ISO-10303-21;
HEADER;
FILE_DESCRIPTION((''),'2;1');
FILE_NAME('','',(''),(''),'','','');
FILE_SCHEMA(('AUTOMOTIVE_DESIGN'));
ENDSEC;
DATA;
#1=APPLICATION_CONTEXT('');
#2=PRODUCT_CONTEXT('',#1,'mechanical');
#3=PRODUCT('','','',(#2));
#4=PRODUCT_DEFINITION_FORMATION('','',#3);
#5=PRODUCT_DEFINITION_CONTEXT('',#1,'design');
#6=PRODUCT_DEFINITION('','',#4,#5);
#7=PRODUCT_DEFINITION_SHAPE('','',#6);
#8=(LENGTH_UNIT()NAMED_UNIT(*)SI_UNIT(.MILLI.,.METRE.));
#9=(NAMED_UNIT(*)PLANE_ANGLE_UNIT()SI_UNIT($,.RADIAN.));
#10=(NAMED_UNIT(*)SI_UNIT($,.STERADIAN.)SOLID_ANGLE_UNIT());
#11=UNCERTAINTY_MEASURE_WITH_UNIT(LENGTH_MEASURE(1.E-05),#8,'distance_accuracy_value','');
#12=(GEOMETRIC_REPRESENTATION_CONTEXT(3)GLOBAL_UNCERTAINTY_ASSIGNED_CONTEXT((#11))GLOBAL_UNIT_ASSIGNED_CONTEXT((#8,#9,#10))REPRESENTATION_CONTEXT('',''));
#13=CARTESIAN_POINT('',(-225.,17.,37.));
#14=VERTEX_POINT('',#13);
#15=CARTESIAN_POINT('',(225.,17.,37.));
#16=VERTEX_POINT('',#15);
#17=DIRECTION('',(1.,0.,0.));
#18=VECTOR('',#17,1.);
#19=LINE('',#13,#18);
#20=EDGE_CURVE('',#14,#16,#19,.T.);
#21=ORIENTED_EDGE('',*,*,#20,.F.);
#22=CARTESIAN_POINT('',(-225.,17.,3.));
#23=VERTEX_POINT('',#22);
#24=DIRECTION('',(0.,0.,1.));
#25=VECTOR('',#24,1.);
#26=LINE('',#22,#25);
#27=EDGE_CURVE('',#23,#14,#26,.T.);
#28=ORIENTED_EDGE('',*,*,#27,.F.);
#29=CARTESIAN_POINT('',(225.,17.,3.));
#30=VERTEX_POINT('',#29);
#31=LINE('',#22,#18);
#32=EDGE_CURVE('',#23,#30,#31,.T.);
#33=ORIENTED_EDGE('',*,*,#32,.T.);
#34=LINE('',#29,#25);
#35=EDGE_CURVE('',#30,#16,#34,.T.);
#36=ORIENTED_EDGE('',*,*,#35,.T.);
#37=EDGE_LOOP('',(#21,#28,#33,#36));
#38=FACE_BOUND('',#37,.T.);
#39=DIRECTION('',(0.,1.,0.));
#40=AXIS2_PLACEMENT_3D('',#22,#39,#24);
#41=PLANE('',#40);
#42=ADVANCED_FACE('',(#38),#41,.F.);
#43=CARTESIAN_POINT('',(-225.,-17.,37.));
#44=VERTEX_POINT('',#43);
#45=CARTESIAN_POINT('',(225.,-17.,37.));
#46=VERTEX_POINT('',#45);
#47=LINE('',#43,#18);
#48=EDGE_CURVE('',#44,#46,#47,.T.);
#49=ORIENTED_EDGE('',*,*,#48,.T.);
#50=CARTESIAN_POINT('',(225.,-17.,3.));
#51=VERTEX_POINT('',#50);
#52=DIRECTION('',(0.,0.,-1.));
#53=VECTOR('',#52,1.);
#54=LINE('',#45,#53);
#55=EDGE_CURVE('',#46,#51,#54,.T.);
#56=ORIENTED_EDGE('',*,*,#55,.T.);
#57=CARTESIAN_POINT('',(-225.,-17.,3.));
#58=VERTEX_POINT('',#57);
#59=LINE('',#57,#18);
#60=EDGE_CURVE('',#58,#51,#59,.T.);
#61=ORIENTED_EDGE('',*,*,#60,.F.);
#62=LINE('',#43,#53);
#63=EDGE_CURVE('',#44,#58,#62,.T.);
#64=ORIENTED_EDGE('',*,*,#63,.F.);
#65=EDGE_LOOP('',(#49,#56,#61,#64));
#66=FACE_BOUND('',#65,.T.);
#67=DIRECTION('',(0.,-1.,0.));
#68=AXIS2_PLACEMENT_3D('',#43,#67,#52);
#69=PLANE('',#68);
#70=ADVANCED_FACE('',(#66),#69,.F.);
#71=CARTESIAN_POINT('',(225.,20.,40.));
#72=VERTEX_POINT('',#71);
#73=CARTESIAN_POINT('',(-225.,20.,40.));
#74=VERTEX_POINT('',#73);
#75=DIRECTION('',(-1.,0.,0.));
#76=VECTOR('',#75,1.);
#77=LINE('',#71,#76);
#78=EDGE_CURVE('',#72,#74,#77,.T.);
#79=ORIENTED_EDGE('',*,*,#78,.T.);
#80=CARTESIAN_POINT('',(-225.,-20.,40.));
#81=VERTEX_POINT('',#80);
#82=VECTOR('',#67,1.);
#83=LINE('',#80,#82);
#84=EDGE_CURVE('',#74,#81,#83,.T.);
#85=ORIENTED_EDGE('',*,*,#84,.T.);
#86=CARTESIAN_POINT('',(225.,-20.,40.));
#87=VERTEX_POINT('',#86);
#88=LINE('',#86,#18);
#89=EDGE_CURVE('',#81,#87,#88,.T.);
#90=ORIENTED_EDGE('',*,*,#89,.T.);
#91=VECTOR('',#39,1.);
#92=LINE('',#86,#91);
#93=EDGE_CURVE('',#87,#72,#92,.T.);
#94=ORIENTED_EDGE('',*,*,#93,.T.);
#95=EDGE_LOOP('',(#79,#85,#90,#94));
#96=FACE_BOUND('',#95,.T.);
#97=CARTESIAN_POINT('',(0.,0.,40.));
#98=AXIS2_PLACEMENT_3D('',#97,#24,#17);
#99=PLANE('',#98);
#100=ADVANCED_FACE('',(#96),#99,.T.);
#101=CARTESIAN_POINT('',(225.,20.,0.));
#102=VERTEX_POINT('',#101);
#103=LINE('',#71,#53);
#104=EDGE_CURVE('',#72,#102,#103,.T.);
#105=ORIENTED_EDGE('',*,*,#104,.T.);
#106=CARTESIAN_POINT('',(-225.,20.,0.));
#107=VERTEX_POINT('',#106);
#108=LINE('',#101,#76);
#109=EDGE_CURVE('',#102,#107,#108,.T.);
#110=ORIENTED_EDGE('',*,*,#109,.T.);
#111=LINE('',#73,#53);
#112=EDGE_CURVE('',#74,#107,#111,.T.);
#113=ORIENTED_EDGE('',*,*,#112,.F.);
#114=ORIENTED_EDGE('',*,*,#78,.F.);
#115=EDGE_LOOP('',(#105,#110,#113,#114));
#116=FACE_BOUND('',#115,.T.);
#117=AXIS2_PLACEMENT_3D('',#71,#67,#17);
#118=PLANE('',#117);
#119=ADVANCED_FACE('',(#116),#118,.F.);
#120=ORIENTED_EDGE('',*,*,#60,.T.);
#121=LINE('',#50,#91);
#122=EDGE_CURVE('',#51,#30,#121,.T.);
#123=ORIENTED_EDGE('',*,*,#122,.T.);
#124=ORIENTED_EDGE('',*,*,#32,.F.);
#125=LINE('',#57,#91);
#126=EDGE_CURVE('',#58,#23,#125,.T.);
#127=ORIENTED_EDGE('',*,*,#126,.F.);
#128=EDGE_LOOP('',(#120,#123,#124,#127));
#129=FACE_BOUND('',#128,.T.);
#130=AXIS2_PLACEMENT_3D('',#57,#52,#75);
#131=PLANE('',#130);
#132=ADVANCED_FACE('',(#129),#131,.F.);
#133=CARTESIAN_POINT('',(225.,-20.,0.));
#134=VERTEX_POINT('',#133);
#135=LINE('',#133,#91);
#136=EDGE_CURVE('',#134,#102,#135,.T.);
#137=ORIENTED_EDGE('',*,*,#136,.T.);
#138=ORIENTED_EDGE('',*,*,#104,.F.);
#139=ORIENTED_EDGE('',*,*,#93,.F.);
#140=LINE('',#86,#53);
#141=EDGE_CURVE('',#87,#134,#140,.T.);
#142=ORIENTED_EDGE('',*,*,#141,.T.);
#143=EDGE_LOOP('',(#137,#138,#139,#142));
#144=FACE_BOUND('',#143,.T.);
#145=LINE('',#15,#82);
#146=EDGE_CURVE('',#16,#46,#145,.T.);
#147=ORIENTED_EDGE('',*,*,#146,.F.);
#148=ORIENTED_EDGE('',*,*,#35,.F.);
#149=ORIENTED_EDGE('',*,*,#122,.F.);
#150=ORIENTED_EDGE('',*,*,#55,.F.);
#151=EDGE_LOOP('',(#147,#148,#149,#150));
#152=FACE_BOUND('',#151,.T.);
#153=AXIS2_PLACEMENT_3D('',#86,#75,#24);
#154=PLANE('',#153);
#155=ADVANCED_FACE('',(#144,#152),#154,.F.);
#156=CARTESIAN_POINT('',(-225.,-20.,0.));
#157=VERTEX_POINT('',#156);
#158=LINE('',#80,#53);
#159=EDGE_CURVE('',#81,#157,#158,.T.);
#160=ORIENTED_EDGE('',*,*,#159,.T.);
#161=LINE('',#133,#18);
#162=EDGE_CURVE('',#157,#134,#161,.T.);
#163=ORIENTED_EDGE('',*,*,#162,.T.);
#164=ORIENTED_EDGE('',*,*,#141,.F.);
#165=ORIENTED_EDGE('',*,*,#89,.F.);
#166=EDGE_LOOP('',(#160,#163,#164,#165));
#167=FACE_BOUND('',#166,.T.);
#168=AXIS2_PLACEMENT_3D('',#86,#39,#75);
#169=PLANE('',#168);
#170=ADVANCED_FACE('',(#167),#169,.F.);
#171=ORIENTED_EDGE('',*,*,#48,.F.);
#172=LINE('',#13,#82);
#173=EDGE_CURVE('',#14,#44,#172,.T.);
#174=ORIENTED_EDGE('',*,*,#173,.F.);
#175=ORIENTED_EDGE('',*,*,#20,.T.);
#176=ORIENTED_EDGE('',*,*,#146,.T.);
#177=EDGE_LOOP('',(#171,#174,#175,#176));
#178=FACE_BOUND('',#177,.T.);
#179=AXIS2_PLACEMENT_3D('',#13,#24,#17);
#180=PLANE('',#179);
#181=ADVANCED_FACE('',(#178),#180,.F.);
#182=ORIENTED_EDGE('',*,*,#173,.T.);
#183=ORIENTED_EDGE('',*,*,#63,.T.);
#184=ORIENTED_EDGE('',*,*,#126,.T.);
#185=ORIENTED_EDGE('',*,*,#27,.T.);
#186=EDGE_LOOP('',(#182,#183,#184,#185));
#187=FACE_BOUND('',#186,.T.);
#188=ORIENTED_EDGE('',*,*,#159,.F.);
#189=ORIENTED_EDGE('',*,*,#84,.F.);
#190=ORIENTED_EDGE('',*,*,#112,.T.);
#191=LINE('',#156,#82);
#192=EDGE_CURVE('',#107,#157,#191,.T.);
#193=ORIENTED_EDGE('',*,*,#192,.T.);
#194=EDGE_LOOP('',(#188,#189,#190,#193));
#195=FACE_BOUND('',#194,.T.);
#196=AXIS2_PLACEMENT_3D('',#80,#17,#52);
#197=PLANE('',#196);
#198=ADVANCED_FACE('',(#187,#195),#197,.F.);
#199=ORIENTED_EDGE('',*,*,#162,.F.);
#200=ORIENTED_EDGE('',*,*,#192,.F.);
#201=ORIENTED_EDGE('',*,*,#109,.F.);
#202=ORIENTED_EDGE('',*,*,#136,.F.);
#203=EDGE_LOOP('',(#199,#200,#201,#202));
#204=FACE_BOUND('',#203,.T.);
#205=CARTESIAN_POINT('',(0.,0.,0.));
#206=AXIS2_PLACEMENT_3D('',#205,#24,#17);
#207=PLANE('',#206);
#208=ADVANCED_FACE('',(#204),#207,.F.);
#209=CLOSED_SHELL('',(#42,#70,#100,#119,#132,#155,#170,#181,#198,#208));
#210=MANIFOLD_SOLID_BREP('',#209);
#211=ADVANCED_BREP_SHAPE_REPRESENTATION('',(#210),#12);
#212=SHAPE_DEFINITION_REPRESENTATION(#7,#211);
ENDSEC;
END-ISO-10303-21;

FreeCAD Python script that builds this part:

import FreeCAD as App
import Part
import Sketcher

V = App.Vector

doc = App.newDocument("Part")
body = doc.addObject("PartDesign::Body", "Body")

# Sketch on XY plane
sketch1 = body.newObject("Sketcher::SketchObject", "Sketch")
sketch1.AttachmentSupport = (doc.getObject("XY_Plane"), [""])
sketch1.MapMode = "FlatFace"
sketch1.addGeometry([
    Part.LineSegment(V(-225, 20, 0), V(-225, -20, 0)),
    Part.LineSegment(V(-225, -20, 0), V(225, -20, 0)),
    Part.LineSegment(V(225, -20, 0), V(225, 20, 0)),
    Part.LineSegment(V(225, 20, 0), V(-225, 20, 0)),
], False)
sketch1.addConstraint([
    Sketcher.Constraint("Coincident", 0, 2, 1, 1),
    Sketcher.Constraint("Coincident", 1, 2, 2, 1),
    Sketcher.Constraint("Coincident", 2, 2, 3, 1),
    Sketcher.Constraint("Coincident", 3, 2, 0, 1),
    Sketcher.Constraint("Vertical", 0),
    Sketcher.Constraint("Horizontal", 1),
    Sketcher.Constraint("Vertical", 2),
    Sketcher.Constraint("Horizontal", 3),
    Sketcher.Constraint("Symmetric", 0, 2, 2, 2, -1, 1),
    Sketcher.Constraint("DistanceX", 1, 1, 1, 2, 450.0),
    Sketcher.Constraint("DistanceY", 0, 2, 0, 1, 40.0),
])
pad1 = body.newObject("PartDesign::Pad", "Pad")
pad1.Profile = sketch1
pad1.Length = 40

# Sketch on YZ plane
sketch2 = body.newObject("Sketcher::SketchObject", "Sketch001")
sketch2.AttachmentSupport = (doc.getObject("YZ_Plane"), [""])
sketch2.MapMode = "FlatFace"
sketch2.AttachmentOffset = App.Placement(V(0, 0, 225), App.Rotation())
sketch2.addGeometry([
    Part.LineSegment(V(17, 37, 0), V(-17, 37, 0)),
    Part.LineSegment(V(-17, 37, 0), V(-17, 3, 0)),
    Part.LineSegment(V(-17, 3, 0), V(17, 3, 0)),
    Part.LineSegment(V(17, 3, 0), V(17, 37, 0)),
], False)
sketch2.addConstraint([
    Sketcher.Constraint("Coincident", 0, 2, 1, 1),
    Sketcher.Constraint("Coincident", 1, 2, 2, 1),
    Sketcher.Constraint("Coincident", 2, 2, 3, 1),
    Sketcher.Constraint("Coincident", 3, 2, 0, 1),
    Sketcher.Constraint("Horizontal", 0),
    Sketcher.Constraint("Vertical", 1),
    Sketcher.Constraint("Horizontal", 2),
    Sketcher.Constraint("Vertical", 3),
    Sketcher.Constraint("Equal", 2, 1),
    Sketcher.Constraint("DistanceX", 0, 2, 0, 1, 34.0),
    Sketcher.Constraint("DistanceX", 0, 2, -1, 1, 17.0),
    Sketcher.Constraint("DistanceY", -1, 1, 0, 2, 37.0),
])
pocket1 = body.newObject("PartDesign::Pocket", "Pocket")
pocket1.Profile = sketch2
pocket1.Type = "ThroughAll"

doc.recompute()
